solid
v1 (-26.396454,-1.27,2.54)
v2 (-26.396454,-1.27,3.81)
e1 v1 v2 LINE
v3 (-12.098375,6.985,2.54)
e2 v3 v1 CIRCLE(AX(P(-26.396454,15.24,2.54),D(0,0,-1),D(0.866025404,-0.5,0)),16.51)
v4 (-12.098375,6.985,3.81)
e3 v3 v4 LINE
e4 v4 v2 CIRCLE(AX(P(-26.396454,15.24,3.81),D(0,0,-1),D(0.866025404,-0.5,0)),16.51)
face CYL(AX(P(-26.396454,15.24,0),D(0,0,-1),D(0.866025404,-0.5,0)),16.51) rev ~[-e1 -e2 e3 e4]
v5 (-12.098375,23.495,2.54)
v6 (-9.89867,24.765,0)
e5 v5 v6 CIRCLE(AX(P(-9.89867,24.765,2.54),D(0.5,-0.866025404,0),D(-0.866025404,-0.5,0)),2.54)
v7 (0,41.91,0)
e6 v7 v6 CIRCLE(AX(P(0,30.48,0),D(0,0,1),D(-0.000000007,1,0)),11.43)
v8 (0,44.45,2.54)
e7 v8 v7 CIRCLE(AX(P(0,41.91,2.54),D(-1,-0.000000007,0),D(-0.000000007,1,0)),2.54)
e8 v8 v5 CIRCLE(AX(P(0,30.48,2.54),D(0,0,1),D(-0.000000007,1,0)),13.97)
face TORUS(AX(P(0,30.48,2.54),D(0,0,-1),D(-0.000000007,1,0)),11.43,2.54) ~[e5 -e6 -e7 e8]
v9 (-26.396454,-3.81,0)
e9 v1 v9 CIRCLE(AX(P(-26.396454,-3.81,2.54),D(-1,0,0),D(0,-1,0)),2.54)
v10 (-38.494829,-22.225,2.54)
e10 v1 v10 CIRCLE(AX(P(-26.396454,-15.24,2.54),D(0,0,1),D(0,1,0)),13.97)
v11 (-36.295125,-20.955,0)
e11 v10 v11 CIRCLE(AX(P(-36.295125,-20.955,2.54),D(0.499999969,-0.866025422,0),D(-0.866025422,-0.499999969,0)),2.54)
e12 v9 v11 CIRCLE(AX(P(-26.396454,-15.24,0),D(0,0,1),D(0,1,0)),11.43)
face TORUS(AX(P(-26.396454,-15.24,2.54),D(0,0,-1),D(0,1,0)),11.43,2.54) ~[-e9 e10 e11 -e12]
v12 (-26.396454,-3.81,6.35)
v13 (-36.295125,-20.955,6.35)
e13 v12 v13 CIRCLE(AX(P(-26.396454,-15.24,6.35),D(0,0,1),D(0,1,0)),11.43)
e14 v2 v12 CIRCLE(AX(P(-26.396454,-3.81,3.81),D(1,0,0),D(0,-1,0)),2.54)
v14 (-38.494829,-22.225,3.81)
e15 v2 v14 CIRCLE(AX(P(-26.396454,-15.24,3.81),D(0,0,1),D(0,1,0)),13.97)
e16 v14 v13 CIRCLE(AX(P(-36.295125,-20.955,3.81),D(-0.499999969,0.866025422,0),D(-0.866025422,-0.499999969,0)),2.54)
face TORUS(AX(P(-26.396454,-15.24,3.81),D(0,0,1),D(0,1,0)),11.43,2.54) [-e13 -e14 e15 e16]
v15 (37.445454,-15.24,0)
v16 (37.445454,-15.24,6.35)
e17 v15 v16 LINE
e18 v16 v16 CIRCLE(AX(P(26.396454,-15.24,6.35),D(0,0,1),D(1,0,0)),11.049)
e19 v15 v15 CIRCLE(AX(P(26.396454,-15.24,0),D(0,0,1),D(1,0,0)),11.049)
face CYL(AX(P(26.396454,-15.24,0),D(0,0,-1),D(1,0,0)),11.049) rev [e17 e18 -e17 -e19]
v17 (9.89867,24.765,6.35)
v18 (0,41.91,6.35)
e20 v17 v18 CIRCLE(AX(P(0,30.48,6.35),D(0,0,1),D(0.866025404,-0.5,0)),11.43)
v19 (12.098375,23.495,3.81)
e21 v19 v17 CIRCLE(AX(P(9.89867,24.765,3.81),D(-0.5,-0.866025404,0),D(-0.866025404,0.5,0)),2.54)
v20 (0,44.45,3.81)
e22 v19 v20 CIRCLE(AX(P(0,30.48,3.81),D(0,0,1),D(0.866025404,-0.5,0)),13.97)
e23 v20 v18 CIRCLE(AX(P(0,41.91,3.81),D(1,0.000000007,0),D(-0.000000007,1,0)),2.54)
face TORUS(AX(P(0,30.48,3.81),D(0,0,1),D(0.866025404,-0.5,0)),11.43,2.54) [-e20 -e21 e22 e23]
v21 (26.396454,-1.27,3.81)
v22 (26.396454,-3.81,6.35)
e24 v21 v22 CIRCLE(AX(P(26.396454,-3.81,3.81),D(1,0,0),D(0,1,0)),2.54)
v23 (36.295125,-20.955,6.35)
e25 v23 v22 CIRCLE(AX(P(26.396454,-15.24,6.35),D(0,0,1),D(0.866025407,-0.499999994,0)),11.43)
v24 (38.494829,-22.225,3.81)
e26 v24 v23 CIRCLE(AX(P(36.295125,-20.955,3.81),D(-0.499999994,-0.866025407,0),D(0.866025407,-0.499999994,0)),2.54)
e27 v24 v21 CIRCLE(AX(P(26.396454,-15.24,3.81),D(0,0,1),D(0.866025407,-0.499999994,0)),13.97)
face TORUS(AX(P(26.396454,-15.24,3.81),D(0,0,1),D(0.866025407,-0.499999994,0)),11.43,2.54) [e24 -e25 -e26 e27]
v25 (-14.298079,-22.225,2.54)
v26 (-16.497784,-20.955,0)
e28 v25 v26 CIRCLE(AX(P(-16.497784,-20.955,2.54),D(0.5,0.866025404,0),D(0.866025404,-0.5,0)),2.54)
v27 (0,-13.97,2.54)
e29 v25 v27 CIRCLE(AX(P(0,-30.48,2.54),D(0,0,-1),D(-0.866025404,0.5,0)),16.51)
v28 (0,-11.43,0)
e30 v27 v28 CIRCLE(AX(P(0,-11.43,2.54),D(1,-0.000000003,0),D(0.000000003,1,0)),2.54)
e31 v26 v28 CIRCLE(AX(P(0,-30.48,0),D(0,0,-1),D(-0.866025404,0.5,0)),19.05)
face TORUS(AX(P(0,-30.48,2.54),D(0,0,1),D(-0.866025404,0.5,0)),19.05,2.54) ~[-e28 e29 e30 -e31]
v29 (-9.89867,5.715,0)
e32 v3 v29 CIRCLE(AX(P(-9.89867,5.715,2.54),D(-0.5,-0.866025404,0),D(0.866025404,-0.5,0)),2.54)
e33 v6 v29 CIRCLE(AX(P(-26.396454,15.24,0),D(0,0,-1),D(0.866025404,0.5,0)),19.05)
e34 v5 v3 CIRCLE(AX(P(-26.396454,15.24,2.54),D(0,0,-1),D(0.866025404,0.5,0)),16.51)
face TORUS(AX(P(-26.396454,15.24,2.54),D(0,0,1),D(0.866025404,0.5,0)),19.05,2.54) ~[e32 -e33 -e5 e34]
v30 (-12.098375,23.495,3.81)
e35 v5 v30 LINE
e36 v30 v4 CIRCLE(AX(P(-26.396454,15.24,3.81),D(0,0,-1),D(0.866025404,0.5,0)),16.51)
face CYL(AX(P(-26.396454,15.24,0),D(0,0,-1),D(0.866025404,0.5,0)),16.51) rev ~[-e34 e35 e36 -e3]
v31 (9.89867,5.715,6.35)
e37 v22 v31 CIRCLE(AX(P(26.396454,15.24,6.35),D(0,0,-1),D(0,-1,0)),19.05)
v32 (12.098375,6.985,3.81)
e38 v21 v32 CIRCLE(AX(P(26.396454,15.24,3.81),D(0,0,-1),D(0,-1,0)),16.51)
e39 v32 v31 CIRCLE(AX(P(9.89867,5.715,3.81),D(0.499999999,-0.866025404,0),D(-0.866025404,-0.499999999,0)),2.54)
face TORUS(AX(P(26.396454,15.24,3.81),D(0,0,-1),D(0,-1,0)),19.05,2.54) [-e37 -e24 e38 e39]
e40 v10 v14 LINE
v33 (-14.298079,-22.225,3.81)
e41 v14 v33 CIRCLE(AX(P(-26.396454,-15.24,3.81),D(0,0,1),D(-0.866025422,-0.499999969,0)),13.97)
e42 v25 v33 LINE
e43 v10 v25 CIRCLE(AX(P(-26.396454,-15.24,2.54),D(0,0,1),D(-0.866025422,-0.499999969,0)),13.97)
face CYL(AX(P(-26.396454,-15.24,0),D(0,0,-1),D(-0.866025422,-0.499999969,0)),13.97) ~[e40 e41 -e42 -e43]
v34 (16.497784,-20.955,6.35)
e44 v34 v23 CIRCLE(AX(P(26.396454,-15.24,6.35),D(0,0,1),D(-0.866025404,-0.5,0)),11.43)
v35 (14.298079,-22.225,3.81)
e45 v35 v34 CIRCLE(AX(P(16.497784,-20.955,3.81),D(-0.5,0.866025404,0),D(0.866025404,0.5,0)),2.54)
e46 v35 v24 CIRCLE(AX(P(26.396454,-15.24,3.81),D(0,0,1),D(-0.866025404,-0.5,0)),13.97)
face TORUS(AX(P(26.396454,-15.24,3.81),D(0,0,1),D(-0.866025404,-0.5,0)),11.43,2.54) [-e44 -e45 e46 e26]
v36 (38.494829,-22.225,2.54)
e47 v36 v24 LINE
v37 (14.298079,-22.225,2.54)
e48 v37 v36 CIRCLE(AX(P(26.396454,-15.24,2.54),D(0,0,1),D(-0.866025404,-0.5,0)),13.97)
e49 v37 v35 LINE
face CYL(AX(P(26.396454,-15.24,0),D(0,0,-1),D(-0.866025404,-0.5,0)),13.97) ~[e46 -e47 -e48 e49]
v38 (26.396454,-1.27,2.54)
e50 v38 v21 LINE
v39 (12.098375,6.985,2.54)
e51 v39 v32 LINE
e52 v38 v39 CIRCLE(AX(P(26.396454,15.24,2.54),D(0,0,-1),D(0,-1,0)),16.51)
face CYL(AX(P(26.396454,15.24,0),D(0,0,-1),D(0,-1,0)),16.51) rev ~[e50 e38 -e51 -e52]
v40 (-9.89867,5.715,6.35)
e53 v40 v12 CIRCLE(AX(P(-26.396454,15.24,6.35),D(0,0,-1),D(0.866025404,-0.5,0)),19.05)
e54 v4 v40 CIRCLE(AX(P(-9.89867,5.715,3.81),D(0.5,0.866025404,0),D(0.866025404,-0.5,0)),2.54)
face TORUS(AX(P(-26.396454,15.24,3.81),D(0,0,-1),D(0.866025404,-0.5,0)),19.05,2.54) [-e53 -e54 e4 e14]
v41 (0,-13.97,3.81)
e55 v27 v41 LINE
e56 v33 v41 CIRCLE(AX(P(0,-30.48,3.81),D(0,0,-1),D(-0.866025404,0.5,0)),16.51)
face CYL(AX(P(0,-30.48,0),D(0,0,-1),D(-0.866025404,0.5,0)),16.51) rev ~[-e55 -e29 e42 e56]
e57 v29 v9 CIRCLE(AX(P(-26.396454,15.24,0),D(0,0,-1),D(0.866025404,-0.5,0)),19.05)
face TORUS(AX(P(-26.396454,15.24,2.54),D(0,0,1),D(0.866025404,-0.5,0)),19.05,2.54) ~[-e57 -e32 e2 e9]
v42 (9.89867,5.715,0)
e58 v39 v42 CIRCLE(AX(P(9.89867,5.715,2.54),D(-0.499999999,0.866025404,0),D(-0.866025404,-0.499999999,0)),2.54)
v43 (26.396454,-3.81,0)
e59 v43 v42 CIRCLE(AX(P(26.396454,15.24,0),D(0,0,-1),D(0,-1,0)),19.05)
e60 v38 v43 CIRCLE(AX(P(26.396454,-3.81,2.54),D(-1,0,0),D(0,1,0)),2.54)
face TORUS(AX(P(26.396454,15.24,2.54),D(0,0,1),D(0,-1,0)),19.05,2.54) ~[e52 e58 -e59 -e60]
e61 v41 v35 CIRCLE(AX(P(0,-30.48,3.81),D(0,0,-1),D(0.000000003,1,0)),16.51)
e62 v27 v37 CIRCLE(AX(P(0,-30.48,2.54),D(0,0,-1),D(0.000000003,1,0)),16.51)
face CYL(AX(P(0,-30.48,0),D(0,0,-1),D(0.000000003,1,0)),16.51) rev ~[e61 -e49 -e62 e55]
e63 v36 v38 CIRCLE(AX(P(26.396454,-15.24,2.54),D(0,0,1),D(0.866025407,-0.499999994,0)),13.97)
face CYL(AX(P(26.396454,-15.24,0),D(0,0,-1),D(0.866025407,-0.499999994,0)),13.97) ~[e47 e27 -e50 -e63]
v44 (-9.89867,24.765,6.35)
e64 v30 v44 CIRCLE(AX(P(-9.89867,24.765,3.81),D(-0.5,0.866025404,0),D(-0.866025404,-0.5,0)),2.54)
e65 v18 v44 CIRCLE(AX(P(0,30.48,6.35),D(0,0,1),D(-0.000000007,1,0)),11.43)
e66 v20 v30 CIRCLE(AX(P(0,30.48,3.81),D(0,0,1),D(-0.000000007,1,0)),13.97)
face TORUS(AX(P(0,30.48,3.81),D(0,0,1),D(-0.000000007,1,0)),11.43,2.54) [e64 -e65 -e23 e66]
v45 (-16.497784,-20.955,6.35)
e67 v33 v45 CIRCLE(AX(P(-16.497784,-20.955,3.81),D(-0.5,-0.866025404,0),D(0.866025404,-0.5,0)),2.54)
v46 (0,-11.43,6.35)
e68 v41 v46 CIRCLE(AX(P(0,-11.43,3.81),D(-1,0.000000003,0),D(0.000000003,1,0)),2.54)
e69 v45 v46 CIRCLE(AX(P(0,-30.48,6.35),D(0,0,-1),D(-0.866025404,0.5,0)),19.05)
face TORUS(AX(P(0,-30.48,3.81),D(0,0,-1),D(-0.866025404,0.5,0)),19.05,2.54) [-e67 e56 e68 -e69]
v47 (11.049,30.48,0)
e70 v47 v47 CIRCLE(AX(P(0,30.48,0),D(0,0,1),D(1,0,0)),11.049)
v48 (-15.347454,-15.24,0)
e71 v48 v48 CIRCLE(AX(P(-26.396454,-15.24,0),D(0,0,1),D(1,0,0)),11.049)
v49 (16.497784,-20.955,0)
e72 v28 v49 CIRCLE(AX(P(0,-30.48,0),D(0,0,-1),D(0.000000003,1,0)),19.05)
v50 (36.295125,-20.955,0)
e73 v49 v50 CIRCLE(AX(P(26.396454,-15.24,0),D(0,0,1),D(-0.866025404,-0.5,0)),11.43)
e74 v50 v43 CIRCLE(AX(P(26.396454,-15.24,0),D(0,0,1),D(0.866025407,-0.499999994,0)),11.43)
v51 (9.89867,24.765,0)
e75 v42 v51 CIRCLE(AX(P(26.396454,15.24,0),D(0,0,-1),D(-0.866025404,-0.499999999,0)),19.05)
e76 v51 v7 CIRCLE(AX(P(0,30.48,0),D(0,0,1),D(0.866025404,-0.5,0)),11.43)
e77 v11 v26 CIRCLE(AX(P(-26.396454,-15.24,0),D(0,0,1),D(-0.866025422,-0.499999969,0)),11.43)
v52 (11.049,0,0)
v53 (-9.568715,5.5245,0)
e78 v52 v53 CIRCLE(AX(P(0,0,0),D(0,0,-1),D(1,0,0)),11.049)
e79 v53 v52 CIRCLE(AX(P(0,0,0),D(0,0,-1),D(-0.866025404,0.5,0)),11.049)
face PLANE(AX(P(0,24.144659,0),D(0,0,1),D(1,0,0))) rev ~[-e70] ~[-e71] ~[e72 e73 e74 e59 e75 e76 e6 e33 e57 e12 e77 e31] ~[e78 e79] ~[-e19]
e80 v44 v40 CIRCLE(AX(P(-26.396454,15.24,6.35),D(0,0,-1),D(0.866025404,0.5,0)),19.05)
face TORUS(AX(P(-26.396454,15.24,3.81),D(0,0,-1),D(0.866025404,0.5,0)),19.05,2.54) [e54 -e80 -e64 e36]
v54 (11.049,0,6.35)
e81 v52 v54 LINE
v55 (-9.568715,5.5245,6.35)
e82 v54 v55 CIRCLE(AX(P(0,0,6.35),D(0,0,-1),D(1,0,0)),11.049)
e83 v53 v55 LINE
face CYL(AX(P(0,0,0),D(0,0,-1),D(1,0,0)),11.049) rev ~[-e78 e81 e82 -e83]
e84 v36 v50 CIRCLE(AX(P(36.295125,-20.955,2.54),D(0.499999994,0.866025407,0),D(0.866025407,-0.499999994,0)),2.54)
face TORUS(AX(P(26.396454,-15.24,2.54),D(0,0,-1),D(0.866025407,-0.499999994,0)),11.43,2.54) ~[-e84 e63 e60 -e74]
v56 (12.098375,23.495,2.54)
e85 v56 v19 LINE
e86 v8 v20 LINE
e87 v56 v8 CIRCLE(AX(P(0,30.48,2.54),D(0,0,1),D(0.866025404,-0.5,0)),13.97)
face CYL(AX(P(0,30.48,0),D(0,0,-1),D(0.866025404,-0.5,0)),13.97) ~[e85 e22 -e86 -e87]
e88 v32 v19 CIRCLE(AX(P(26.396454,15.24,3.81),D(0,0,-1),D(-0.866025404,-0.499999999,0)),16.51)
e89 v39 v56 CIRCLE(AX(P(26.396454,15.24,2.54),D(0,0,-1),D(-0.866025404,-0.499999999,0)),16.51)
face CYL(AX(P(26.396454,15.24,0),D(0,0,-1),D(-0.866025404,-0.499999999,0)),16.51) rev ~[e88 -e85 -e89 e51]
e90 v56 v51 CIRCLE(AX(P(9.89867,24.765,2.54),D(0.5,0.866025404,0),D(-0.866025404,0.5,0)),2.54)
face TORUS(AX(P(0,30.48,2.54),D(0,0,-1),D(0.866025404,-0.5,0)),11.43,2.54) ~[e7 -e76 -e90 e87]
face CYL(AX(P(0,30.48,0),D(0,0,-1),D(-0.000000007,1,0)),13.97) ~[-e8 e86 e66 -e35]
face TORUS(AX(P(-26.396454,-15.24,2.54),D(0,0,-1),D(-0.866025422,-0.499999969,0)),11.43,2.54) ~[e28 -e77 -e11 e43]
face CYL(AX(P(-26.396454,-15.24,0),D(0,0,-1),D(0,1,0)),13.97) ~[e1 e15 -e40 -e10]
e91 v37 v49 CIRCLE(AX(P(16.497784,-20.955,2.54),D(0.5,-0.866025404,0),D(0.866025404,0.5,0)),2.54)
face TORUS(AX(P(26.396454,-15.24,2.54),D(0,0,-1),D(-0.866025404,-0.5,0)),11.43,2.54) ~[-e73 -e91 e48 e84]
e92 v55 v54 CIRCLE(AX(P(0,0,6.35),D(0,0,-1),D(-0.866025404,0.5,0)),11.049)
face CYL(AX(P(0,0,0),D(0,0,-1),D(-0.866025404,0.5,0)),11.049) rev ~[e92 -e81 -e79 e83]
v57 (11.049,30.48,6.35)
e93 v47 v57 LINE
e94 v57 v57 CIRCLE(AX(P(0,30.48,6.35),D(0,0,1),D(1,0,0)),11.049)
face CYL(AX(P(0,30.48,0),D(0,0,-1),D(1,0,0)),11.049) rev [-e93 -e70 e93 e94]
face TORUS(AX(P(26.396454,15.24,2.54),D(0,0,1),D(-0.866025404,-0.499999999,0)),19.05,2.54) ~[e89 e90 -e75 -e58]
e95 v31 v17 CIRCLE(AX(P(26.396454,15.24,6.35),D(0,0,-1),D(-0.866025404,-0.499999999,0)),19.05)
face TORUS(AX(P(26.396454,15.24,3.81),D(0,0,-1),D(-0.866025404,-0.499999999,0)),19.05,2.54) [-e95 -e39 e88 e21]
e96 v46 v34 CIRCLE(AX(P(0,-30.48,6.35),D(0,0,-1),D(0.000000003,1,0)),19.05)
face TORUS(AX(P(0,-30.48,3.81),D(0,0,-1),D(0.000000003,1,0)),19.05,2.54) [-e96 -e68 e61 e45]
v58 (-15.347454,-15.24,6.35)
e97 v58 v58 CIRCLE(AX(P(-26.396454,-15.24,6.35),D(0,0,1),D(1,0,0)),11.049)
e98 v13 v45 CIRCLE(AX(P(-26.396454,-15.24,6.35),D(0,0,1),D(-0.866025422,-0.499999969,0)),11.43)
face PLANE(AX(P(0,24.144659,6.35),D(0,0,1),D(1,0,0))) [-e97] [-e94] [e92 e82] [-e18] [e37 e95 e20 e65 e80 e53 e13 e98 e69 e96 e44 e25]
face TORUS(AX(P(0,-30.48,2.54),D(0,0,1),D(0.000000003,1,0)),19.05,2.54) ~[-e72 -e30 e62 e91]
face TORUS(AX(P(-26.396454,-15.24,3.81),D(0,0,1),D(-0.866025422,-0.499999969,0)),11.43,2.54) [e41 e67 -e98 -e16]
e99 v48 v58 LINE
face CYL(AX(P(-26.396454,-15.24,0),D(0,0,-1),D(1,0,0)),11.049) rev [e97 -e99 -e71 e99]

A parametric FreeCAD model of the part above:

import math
import FreeCAD as App
import Part
import Sketcher

V = App.Vector
Q = App.Units.Quantity


def edges_at(feature, points):
    """Names of the edges that pass closest to the given points."""
    edges = feature.Shape.Edges
    near = lambda p: min(range(len(edges)), key=lambda i: edges[i].distToShape(Part.Vertex(*p))[0])
    return sorted({f"Edge{near(p) + 1}" for p in points})

doc = App.newDocument("Part")
body = doc.addObject("PartDesign::Body", "Body")

# Sketch on XY plane
sketch1 = body.newObject("Sketcher::SketchObject", "Sketch")
sketch1.AttachmentSupport = (doc.getObject("XY_Plane"), [""])
sketch1.MapMode = "FlatFace"
sketch1.addGeometry([
    Part.ArcOfCircle(Part.Circle(V(-26, 15, 0), V(0, 0, 1), 17), math.radians(-30), math.radians(30)),  # 0
    Part.ArcOfCircle(Part.Circle(V(-26, 15, 0), V(0, 0, 1), 17), math.radians(-90), math.radians(-30)),  # 1
    Part.ArcOfCircle(Part.Circle(V(-26, -15, 0), V(0, 0, 1), 14), math.radians(90), math.radians(210)),  # 2
    Part.ArcOfCircle(Part.Circle(V(-26, -15, 0), V(0, 0, 1), 14), math.radians(-150), math.radians(-30)),  # 3
    Part.ArcOfCircle(Part.Circle(V(0, -30, 0), V(0, 0, 1), 17), math.radians(90), math.radians(150)),  # 4
    Part.ArcOfCircle(Part.Circle(V(0, -30, 0), V(0, 0, 1), 17), math.radians(30), math.radians(90)),  # 5
    Part.ArcOfCircle(Part.Circle(V(26, -15, 0), V(0, 0, 1), 14), math.radians(-150), math.radians(-30)),  # 6
    Part.ArcOfCircle(Part.Circle(V(26, -15, 0), V(0, 0, 1), 14), math.radians(-30), math.radians(90)),  # 7
    Part.ArcOfCircle(Part.Circle(V(26, 15, 0), V(0, 0, 1), 17), math.radians(-150), math.radians(-90)),  # 8
    Part.ArcOfCircle(Part.Circle(V(26, 15, 0), V(0, 0, 1), 17), math.radians(150), math.radians(210)),  # 9
    Part.ArcOfCircle(Part.Circle(V(0, 30, 0), V(0, 0, 1), 14), math.radians(-30), math.radians(90)),  # 10
    Part.ArcOfCircle(Part.Circle(V(0, 30, 0), V(0, 0, 1), 14), math.radians(90), math.radians(210)),  # 11
    Part.Circle(V(-26, -15, 0), V(0, 0, 1), 11),  # 12
    Part.Circle(V(26, -15, 0), V(0, 0, 1), 11),  # 13
    Part.ArcOfCircle(Part.Circle(V(0, 0, 0), V(0, 0, 1), 11), math.radians(150), math.radians(360)),  # 14
    Part.ArcOfCircle(Part.Circle(V(0, 0, 0), V(0, 0, 1), 11), math.radians(0), math.radians(150)),  # 15
    Part.Circle(V(0, 30, 0), V(0, 0, 1), 11),  # 16
], False)
sketch1.addConstraint([
    Sketcher.Constraint("Tangent", 0, 1, 1, 2),
    Sketcher.Constraint("Tangent", 1, 1, 2, 1),
    Sketcher.Constraint("Tangent", 2, 2, 3, 1),
    Sketcher.Constraint("Tangent", 3, 2, 4, 2),
    Sketcher.Constraint("Tangent", 4, 1, 5, 2),
    Sketcher.Constraint("Tangent", 5, 1, 6, 1),
    Sketcher.Constraint("Tangent", 6, 2, 7, 1),
    Sketcher.Constraint("Tangent", 7, 2, 8, 2),
    Sketcher.Constraint("Tangent", 8, 1, 9, 2),
    Sketcher.Constraint("Tangent", 9, 1, 10, 1),
    Sketcher.Constraint("Tangent", 10, 2, 11, 1),
    Sketcher.Constraint("Tangent", 11, 2, 0, 2),
    Sketcher.Constraint("Tangent", 14, 1, 15, 2),
    Sketcher.Constraint("Coincident", 15, 1, 14, 2),
    Sketcher.Constraint("Coincident", 14, 3, -1, 1),
    Sketcher.Constraint("Coincident", 12, 3, 2, 3),
    Sketcher.Constraint("Coincident", 13, 3, 6, 3),
    Sketcher.Constraint("Coincident", 16, 3, 10, 3),
    Sketcher.Constraint("Equal", 0, 1),
    Sketcher.Constraint("Equal", 2, 3),
    Sketcher.Constraint("Equal", 1, 4),
    Sketcher.Constraint("Equal", 4, 5),
    Sketcher.Constraint("Equal", 3, 6),
    Sketcher.Constraint("Equal", 6, 7),
    Sketcher.Constraint("Equal", 5, 8),
    Sketcher.Constraint("Equal", 8, 9),
    Sketcher.Constraint("Equal", 7, 10),
    Sketcher.Constraint("Equal", 10, 11),
    Sketcher.Constraint("Equal", 12, 13),
    Sketcher.Constraint("Equal", 13, 14),
    Sketcher.Constraint("Equal", 15, 16),
    Sketcher.Constraint("Symmetric", 0, 3, 6, 3, -1, 1),
    Sketcher.Constraint("Symmetric", 2, 3, 6, 3, -2),
    Sketcher.Constraint("Symmetric", 0, 1, 8, 1, -2),
    Sketcher.Constraint("PointOnObject", 4, 1, -2),
    Sketcher.Constraint("PointOnObject", 10, 2, -2),
    Sketcher.Constraint("PointOnObject", 15, 1, -1),
    Sketcher.Constraint("Horizontal", 2, 2, 3, 2),
    Sketcher.Constraint("Horizontal", 5, 1, 6, 2),
    Sketcher.Constraint("Vertical", 8, 1, 9, 1),
    Sketcher.Constraint("Diameter", 12, Q("0.87 in")),
    Sketcher.Constraint("Radius", 0, Q("0.65 in")),
    Sketcher.Constraint("Radius", 2, Q("0.55 in")),
    Sketcher.Constraint("DistanceY", 4, 3, -1, 1, Q("1.2 in")),
    Sketcher.Constraint("DistanceY", -1, 1, 14, 1, Q("0.2175 in")),
])
pad1 = body.newObject("PartDesign::Pad", "Pad")
pad1.Profile = sketch1
pad1.Length = Q("0.25 in")
doc.recompute()

fillet = body.newObject("PartDesign::Fillet", "Fillet")
fillet.Base = (pad1, edges_at(pad1, [(-26.396, -29.21, 6.35), (-26.396, -29.21, 0)]))
fillet.Radius = Q("0.1 in")

doc.recompute()
